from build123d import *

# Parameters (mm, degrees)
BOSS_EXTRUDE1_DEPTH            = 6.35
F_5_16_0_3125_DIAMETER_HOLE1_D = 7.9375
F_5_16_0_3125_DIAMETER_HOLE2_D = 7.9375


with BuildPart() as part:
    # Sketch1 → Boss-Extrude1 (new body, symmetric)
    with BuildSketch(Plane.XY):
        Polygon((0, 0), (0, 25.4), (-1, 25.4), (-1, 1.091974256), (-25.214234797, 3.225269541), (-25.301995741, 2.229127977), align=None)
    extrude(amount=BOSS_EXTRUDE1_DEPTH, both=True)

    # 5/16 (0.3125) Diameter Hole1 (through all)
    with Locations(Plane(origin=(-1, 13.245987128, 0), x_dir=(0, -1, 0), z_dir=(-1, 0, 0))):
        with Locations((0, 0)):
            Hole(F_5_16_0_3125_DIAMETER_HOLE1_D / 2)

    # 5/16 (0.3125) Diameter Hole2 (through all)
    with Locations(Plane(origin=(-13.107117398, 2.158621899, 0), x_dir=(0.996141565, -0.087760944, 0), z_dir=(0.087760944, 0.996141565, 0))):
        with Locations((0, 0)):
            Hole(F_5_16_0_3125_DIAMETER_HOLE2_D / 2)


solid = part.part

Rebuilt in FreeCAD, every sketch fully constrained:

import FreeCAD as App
import Part
import Sketcher
Q = App.Units.Quantity

doc = App.newDocument("Part")
body = doc.addObject("PartDesign::Body", "Body")

# Sketch on XY plane
sketch1 = body.newObject("Sketcher::SketchObject", "Sketch")
sketch1.AttachmentSupport = (doc.getObject("XY_Plane"), [""])
sketch1.MapMode = "FlatFace"
sketch1.addGeometry([
    Part.LineSegment(App.Vector(0, 0, 0), App.Vector(0, 25.4, 0)),  # 0
    Part.LineSegment(App.Vector(0, 25.4, 0), App.Vector(-1, 25.4, 0)),  # 1
    Part.LineSegment(App.Vector(-1, 25.4, 0), App.Vector(-1, 1.091974, 0)),  # 2
    Part.LineSegment(App.Vector(-1, 1.091974, 0), App.Vector(-25.214235, 3.22527, 0)),  # 3
    Part.LineSegment(App.Vector(-25.214235, 3.22527, 0), App.Vector(-25.301996, 2.229128, 0)),  # 4
    Part.LineSegment(App.Vector(-25.301996, 2.229128, 0), App.Vector(0, 0, 0)),  # 5
], False)
sketch1.addConstraint([
    Sketcher.Constraint("Coincident", 0, 2, 1, 1),
    Sketcher.Constraint("Coincident", 1, 2, 2, 1),
    Sketcher.Constraint("Coincident", 2, 2, 3, 1),
    Sketcher.Constraint("Coincident", 3, 2, 4, 1),
    Sketcher.Constraint("Coincident", 4, 2, 5, 1),
    Sketcher.Constraint("Coincident", 5, 2, 0, 1),
    Sketcher.Constraint("Vertical", 0),
    Sketcher.Constraint("Horizontal", 1),
    Sketcher.Constraint("Vertical", 2),
    Sketcher.Constraint("Coincident", 5, 2, -1, 1),
    Sketcher.Constraint("Perpendicular", 3, 4),
    Sketcher.Constraint("Perpendicular", 4, 5),
    Sketcher.Constraint("DistanceY", 0, 1, 0, 2, Q("1 in")),
    Sketcher.Constraint("Distance", 5, Q("1 in")),
    Sketcher.Constraint("DistanceX", 1, 2, 1, 1, Q("1 mm")),
    Sketcher.Constraint("Distance", 4, Q("1 mm")),
    Sketcher.Constraint("DistanceY", 2, 2, 2, 1, Q("24.308026 mm")),
])
pad1 = body.newObject("PartDesign::Pad", "Pad")
pad1.Profile = sketch1
pad1.Length = Q("0.5 in")
pad1.Midplane = True

# Sketch on YZ plane
sketch2 = body.newObject("Sketcher::SketchObject", "Sketch001")
sketch2.AttachmentSupport = (doc.getObject("YZ_Plane"), [""])
sketch2.MapMode = "FlatFace"
sketch2.AttachmentOffset = App.Placement(App.Vector(0, 0, -1), App.Rotation())
sketch2.addGeometry(Part.Circle(App.Vector(13.245987, 0, 0), App.Vector(0, 0, 1), 3.96875), False)
sketch2.addConstraint([
    Sketcher.Constraint("PointOnObject", 0, 3, -1),
    Sketcher.Constraint("Diameter", 0, Q("0.3125 in")),
    Sketcher.Constraint("DistanceX", -1, 1, 0, 3, Q("13.245987 mm")),
])
doc.recompute()
hole = body.newObject("PartDesign::Hole", "Hole")
hole.Profile = sketch2
hole.ThreadType = "None"
hole.Diameter = Q("0.3125 in")
hole.DepthType = "ThroughAll"
hole.Reversed = True

# Sketch on an angled plane
sketch3 = body.newObject("Sketcher::SketchObject", "Sketch002")
sketch3.Placement = App.Placement(App.Vector(0.087761, 0.996142, 0), App.Rotation(App.Vector(0.996141565, -0.087760944, 0), App.Vector(0, 0, -1.000000001), App.Vector(0.087760944, 0.996141565, 0), "ZXY"))
sketch3.addGeometry(Part.Circle(App.Vector(-13.245987, 0, 0), App.Vector(0, 0, 1), 3.96875), False)
sketch3.addConstraint([
    Sketcher.Constraint("PointOnObject", 0, 3, -1),
    Sketcher.Constraint("Diameter", 0, Q("0.3125 in")),
    Sketcher.Constraint("DistanceX", 0, 3, -1, 1, Q("13.245987 mm")),
])
doc.recompute()
hole2 = body.newObject("PartDesign::Hole", "Hole001")
hole2.Profile = sketch3
hole2.ThreadType = "None"
hole2.Diameter = Q("0.3125 in")
hole2.DepthType = "ThroughAll"

doc.recompute()
